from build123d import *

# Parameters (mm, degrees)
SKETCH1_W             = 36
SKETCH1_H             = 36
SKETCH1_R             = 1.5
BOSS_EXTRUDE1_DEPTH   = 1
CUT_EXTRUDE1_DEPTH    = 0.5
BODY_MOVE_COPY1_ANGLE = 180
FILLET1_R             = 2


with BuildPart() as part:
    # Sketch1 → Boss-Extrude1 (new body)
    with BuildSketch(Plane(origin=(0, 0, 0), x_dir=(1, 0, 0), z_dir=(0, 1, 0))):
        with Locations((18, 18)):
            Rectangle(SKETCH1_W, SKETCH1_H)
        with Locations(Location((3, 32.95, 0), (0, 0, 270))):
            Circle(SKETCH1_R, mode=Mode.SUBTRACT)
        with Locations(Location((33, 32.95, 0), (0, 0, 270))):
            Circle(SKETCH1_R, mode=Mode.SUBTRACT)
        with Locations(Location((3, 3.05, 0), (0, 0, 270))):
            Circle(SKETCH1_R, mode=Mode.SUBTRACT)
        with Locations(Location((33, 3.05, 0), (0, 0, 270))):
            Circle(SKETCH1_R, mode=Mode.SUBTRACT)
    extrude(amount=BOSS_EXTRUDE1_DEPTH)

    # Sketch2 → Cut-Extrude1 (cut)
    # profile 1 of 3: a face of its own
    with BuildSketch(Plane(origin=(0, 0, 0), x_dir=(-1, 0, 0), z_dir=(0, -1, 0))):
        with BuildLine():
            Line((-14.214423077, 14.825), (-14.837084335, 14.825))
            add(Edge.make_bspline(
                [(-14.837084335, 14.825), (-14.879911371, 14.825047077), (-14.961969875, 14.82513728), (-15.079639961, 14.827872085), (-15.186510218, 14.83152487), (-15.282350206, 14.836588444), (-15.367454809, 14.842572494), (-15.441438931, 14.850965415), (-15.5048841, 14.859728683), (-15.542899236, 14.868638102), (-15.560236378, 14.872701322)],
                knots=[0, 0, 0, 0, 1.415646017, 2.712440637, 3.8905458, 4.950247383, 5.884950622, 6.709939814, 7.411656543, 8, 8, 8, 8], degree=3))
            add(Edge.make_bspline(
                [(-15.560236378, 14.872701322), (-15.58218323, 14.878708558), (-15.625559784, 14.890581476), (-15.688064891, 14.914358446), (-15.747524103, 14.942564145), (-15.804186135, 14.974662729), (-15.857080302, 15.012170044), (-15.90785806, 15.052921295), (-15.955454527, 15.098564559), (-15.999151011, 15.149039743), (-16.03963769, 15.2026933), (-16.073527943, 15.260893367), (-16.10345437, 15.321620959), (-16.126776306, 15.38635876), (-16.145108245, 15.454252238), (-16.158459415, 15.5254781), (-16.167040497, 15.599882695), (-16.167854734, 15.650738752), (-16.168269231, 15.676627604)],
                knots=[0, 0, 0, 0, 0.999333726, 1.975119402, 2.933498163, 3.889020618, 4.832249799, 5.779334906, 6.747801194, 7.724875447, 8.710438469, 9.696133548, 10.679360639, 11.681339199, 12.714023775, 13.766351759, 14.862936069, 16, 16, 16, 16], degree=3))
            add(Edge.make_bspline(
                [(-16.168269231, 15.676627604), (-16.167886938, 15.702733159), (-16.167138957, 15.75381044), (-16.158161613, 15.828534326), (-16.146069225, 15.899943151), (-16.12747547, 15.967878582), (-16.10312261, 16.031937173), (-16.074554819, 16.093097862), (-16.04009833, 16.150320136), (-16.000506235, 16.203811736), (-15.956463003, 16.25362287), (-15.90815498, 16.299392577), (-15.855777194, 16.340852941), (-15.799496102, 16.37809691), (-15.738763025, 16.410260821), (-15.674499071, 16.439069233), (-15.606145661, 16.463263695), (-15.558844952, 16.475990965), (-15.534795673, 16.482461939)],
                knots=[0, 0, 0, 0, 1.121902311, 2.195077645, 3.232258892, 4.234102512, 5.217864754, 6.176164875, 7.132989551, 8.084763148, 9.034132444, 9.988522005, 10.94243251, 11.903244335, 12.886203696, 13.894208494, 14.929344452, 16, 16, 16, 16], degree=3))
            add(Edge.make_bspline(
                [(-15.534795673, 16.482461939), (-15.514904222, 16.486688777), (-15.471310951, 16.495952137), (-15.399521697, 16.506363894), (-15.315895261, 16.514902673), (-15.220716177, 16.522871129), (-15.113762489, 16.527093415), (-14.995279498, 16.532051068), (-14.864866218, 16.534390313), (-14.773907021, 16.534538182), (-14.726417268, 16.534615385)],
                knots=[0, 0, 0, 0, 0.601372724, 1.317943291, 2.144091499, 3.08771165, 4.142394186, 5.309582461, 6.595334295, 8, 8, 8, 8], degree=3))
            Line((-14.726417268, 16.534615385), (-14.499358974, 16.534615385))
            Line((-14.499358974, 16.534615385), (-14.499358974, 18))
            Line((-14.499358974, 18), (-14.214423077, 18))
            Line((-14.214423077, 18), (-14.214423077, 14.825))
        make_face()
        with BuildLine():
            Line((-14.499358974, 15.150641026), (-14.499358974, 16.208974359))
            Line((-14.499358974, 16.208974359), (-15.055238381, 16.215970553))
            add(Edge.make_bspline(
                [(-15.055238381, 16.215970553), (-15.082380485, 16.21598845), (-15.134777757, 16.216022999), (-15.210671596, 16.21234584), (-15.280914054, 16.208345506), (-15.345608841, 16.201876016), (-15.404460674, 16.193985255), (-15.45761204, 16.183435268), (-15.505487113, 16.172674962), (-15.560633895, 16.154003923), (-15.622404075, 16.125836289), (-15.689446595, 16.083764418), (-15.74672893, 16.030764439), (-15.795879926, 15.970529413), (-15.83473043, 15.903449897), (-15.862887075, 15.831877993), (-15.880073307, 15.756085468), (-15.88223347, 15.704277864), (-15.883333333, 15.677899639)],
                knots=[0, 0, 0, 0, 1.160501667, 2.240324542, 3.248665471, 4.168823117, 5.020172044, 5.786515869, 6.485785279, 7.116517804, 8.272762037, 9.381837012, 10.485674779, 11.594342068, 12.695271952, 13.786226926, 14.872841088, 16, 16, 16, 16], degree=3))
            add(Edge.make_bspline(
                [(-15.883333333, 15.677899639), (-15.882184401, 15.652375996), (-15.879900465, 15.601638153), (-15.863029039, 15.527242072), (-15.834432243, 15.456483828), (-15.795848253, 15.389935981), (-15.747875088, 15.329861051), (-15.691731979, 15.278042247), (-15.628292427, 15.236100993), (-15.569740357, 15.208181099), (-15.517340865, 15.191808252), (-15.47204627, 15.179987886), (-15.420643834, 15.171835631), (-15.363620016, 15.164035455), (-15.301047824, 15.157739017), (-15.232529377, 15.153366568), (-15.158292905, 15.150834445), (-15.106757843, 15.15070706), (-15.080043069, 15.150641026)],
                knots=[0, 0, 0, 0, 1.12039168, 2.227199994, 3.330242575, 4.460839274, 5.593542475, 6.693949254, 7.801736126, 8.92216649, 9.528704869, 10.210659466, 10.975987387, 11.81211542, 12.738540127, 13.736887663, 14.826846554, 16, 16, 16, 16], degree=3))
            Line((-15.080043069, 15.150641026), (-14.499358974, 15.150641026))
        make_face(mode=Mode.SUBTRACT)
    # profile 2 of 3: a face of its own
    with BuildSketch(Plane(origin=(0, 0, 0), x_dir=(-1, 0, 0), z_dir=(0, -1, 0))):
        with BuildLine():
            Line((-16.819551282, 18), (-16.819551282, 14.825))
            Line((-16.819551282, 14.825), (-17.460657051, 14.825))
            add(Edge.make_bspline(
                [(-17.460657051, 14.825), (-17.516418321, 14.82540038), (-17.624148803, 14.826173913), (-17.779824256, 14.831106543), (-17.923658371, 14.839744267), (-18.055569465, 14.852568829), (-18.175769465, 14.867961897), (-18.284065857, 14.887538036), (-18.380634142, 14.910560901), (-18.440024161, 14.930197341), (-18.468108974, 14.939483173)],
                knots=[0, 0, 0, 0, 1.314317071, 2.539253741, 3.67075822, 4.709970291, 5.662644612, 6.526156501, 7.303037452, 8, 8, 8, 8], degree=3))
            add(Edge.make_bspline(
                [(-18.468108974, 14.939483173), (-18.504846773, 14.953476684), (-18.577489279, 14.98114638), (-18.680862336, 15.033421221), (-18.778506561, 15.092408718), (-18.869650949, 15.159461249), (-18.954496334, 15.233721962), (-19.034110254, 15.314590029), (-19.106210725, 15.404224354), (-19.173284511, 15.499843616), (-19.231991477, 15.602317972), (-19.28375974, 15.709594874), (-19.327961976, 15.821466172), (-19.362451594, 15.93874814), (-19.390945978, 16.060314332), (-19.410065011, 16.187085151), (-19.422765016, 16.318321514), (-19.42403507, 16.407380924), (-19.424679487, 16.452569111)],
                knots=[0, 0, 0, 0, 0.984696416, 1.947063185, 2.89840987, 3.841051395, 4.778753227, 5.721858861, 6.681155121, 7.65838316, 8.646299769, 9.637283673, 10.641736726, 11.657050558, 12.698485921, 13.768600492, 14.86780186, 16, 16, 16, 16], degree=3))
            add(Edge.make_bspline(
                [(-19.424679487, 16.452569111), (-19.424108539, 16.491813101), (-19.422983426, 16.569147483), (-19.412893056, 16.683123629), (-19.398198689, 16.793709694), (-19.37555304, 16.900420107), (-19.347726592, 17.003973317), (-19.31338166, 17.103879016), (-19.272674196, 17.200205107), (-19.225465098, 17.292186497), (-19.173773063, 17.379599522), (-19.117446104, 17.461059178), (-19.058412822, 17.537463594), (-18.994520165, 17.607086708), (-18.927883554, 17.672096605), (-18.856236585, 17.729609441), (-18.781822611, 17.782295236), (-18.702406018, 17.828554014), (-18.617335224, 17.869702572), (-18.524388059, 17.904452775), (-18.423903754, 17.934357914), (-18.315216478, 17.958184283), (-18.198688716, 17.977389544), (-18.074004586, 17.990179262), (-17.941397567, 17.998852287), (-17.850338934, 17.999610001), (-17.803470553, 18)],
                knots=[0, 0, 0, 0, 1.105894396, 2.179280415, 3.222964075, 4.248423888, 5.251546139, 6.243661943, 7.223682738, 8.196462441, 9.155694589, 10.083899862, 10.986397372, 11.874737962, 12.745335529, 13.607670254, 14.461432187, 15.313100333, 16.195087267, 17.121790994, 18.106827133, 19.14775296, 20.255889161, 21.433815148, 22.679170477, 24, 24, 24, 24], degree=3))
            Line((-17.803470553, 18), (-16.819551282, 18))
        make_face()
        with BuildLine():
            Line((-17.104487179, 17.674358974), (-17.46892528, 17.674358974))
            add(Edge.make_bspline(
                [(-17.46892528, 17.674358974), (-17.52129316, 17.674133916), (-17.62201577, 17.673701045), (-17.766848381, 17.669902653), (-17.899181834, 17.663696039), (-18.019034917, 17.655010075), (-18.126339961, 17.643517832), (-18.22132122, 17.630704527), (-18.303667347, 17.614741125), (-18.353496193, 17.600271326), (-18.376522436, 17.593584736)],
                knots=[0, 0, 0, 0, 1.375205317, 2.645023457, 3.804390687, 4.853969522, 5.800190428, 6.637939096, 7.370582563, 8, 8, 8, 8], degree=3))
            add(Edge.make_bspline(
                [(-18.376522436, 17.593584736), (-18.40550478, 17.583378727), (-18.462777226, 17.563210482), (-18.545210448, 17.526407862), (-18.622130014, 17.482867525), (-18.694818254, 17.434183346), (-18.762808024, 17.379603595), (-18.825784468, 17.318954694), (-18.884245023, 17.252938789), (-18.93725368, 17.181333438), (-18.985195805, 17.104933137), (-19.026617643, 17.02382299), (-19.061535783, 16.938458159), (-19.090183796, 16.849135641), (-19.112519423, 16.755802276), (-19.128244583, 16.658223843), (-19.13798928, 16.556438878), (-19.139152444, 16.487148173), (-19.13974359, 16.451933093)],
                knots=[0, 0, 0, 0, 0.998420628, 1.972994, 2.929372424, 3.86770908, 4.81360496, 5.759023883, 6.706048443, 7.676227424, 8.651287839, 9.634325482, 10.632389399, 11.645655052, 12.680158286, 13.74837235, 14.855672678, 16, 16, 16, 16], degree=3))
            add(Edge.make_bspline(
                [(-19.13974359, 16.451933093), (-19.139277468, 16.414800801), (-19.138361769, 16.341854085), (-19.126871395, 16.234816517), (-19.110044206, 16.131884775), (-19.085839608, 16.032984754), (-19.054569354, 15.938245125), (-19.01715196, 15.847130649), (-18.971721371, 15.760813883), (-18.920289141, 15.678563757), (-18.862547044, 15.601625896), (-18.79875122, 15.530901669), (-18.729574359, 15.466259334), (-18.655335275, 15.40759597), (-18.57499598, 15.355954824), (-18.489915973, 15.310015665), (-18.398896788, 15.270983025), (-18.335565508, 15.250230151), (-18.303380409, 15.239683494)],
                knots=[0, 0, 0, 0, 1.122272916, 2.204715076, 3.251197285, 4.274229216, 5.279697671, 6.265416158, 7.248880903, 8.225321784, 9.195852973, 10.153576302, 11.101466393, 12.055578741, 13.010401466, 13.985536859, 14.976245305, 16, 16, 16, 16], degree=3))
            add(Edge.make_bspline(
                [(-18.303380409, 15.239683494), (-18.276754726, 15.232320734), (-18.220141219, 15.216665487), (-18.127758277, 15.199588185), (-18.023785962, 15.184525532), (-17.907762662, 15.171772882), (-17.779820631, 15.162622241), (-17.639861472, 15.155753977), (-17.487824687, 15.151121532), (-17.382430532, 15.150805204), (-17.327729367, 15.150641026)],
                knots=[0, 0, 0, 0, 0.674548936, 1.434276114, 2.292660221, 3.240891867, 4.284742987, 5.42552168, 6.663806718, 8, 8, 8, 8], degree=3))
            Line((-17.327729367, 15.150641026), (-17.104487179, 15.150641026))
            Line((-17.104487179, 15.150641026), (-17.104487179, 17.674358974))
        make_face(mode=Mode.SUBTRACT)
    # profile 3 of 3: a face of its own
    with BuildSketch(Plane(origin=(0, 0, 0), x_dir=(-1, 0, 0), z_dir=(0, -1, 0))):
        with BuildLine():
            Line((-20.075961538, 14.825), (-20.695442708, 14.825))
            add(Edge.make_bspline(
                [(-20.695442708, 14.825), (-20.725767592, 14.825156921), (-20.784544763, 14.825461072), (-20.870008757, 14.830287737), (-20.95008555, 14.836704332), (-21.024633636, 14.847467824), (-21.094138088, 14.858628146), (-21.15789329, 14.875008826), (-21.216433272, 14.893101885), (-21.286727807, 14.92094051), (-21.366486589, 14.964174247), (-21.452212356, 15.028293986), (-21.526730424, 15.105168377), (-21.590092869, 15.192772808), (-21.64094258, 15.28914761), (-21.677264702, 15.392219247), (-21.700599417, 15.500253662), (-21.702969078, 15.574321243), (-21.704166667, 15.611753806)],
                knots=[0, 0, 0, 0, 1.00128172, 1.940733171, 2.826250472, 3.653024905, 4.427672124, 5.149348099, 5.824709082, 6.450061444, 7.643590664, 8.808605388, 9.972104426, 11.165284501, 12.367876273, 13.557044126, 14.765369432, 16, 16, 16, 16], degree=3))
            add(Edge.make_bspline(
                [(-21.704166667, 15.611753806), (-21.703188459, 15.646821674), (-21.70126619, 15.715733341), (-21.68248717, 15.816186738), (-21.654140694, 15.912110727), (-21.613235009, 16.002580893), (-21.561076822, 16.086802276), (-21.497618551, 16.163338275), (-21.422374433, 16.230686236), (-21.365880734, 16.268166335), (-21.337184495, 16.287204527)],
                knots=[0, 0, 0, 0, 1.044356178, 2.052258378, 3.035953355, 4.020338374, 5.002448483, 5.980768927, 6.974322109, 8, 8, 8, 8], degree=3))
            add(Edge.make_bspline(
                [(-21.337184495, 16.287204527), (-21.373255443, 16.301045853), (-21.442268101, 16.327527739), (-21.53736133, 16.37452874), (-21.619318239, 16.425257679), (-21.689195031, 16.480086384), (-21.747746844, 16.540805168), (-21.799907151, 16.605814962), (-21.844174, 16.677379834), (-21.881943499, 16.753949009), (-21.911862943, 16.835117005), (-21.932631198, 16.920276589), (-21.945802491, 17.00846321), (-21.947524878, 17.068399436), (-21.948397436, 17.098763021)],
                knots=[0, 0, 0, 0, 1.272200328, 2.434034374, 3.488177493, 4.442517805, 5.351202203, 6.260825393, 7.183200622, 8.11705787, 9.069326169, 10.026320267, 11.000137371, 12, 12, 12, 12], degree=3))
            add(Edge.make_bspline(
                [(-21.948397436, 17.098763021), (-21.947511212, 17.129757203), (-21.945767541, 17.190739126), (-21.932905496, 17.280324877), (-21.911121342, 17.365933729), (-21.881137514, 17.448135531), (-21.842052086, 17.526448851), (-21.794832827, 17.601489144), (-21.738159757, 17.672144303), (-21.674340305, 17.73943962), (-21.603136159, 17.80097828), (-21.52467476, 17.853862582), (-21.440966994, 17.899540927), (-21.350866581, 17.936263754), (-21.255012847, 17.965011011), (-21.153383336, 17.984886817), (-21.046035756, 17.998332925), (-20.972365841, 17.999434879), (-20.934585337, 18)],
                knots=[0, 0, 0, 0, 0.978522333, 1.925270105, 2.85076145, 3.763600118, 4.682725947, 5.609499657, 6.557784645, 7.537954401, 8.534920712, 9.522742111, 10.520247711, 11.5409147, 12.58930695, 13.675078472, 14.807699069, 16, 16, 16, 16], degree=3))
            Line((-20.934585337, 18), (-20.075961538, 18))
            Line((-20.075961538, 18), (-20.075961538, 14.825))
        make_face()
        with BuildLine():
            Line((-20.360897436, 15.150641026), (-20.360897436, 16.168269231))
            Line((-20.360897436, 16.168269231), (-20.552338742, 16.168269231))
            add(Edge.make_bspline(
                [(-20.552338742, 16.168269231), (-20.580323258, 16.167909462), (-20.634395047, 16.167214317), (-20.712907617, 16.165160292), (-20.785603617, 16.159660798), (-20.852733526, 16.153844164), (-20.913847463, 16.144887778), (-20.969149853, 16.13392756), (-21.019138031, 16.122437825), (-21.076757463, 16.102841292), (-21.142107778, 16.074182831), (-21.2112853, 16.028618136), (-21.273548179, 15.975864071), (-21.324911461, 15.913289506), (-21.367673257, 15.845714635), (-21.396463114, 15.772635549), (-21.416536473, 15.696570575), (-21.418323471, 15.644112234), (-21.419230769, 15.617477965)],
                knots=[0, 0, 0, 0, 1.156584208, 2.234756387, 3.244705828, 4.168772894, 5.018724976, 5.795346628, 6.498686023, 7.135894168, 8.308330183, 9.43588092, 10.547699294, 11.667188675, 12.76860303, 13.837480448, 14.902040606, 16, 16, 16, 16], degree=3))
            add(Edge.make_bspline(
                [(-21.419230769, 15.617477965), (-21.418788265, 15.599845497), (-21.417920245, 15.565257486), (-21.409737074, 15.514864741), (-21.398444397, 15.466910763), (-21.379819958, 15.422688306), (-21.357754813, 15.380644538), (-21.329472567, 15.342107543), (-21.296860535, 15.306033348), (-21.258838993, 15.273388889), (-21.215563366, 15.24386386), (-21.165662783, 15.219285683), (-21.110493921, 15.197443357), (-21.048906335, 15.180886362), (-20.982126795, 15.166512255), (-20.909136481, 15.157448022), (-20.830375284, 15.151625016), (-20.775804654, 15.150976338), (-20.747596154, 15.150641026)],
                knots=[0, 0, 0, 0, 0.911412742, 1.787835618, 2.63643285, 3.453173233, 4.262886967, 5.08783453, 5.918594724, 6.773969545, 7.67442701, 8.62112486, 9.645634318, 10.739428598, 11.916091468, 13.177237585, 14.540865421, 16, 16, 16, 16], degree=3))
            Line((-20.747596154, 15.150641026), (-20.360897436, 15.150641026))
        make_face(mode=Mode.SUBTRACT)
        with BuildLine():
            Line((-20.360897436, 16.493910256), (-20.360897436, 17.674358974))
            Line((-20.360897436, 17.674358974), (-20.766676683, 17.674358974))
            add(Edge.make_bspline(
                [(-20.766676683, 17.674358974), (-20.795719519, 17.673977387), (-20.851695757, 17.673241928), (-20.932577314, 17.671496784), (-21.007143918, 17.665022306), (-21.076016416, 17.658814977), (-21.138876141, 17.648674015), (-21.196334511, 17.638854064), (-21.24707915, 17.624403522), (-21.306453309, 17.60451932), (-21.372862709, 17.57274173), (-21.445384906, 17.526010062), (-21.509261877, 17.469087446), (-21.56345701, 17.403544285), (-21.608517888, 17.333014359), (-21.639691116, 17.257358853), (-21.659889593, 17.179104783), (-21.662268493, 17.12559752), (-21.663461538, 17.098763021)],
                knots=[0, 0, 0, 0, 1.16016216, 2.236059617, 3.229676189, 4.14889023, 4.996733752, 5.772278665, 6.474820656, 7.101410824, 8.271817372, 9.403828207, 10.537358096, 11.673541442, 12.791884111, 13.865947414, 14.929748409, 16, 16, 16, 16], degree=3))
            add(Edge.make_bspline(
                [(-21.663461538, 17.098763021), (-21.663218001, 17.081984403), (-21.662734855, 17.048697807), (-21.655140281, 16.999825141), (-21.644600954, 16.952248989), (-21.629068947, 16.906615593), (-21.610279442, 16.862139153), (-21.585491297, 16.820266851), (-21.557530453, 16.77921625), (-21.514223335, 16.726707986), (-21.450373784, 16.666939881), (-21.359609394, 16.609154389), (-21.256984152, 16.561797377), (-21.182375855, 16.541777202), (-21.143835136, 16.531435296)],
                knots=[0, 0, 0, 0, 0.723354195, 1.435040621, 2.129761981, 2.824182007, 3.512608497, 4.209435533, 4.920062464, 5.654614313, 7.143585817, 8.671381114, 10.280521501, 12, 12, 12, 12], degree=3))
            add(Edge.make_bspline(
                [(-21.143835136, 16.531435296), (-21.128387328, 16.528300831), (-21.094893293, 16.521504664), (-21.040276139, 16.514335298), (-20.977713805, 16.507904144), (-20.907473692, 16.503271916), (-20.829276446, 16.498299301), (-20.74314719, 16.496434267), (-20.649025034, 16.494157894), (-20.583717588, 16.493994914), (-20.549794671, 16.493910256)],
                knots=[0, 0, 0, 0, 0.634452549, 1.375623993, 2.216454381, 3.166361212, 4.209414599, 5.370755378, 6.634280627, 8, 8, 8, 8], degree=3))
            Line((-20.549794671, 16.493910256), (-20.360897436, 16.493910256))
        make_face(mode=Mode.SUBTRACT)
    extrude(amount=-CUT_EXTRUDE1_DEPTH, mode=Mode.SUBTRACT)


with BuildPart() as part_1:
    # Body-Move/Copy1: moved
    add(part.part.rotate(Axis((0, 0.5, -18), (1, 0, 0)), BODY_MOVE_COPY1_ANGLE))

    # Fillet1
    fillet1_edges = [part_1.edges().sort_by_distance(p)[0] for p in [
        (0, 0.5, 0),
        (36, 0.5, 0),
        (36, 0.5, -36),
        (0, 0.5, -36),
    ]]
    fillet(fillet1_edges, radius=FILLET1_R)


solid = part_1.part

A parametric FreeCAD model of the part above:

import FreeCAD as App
import Part
import Sketcher

V = App.Vector
Q = App.Units.Quantity


def edges_at(feature, points):
    """Names of the edges that pass closest to the given points."""
    edges = feature.Shape.Edges
    near = lambda p: min(range(len(edges)), key=lambda i: edges[i].distToShape(Part.Vertex(*p))[0])
    return sorted({f"Edge{near(p) + 1}" for p in points})


def add_polygon(sketch, points):
    """Adds a closed chain of lines whose ends are joined by coincident constraints."""
    first, n = sketch.GeometryCount, len(points)
    for a, b in zip(points, points[1:] + points[:1]):
        sketch.addGeometry(Part.LineSegment(App.Vector(*a, 0), App.Vector(*b, 0)), False)
    for i in range(n):
        sketch.addConstraint(Sketcher.Constraint("Coincident", first + i, 2, first + (i + 1) % n, 1))

doc = App.newDocument("Part")
body = doc.addObject("PartDesign::Body", "Body")

sketch1 = body.newObject("Sketcher::SketchObject", "Sketch")
sketch1.AttachmentSupport = (doc.getObject("XZ_Plane"), [""])
sketch1.MapMode = "FlatFace"
add_polygon(sketch1, [(0, -36), (0, 0), (36, 0), (36, -36)])
sketch1.addGeometry(Part.Circle(V(3, -3.05, 0), V(0, 0, 1), 1.5), False)
sketch1.addGeometry(Part.Circle(V(33, -3.05, 0), V(0, 0, 1), 1.5), False)
sketch1.addGeometry(Part.Circle(V(3, -32.95, 0), V(0, 0, 1), 1.5), False)
sketch1.addGeometry(Part.Circle(V(33, -32.95, 0), V(0, 0, 1), 1.5), False)
sketch1.addConstraint(Sketcher.Constraint("Vertical", 0))
sketch1.addConstraint(Sketcher.Constraint("Horizontal", 1))
sketch1.addConstraint(Sketcher.Constraint("Vertical", 2))
sketch1.addConstraint(Sketcher.Constraint("Horizontal", 3))
sketch1.addConstraint(Sketcher.Constraint("Coincident", 0, 2, -1, 1))
sketch1.addConstraint(Sketcher.Constraint("Equal", 4, 5))
sketch1.addConstraint(Sketcher.Constraint("Equal", 5, 6))
sketch1.addConstraint(Sketcher.Constraint("Equal", 6, 7))
sketch1.addConstraint(Sketcher.Constraint("Horizontal", 4, 3, 5, 3))
sketch1.addConstraint(Sketcher.Constraint("Horizontal", 6, 3, 7, 3))
sketch1.addConstraint(Sketcher.Constraint("Vertical", 4, 3, 6, 3))
sketch1.addConstraint(Sketcher.Constraint("Vertical", 5, 3, 7, 3))
sketch1.addConstraint(Sketcher.Constraint("Equal", 3, 0))
sketch1.addConstraint(Sketcher.Constraint("Diameter", 4, Q("3 mm")))
sketch1.addConstraint(Sketcher.Constraint("DistanceX", 1, 1, 1, 2, Q("36 mm")))
sketch1.addConstraint(Sketcher.Constraint("DistanceX", -1, 1, 4, 3, Q("3 mm")))
sketch1.addConstraint(Sketcher.Constraint("DistanceX", -1, 1, 5, 3, Q("33 mm")))
sketch1.addConstraint(Sketcher.Constraint("DistanceY", 6, 3, 4, 3, Q("29.9 mm")))
sketch1.addConstraint(Sketcher.Constraint("DistanceY", 4, 3, -1, 1, Q("3.05 mm")))
pad1 = body.newObject("PartDesign::Pad", "Pad")
pad1.Profile = sketch1
pad1.Length = 1
pad1.Reversed = True

sketch2 = body.newObject("Sketcher::SketchObject", "Sketch001")
sketch2.AttachmentSupport = (doc.getObject("XZ_Plane"), [""])
sketch2.MapMode = "FlatFace"
sketch2.addGeometry(Part.LineSegment(V(14.837084, -14.825, 0), V(14.214423, -14.825, 0)), False)
sketch2.addGeometry(Part.LineSegment(V(14.214423, -14.825, 0), V(14.214423, -18, 0)), False)
sketch2.addGeometry(Part.LineSegment(V(14.214423, -18, 0), V(14.499359, -18, 0)), False)
sketch2.addGeometry(Part.LineSegment(V(14.499359, -18, 0), V(14.499359, -16.534615, 0)), False)
sketch2.addGeometry(Part.LineSegment(V(14.499359, -16.534615, 0), V(14.726417, -16.534615, 0)), False)
sketch2.addGeometry(Part.BSplineCurve([V(15.534796, -16.482462, 0), V(15.514904, -16.486689, 0), V(15.471311, -16.495952, 0), V(15.399522, -16.506364, 0), V(15.315895, -16.514903, 0), V(15.220716, -16.522871, 0), V(15.113762, -16.527093, 0), V(14.995279, -16.532051, 0), V(14.864866, -16.53439, 0), V(14.773907, -16.534538, 0), V(14.726417, -16.534615, 0)], [4, 1, 1, 1, 1, 1, 1, 1, 4], [0, 0.601372724, 1.317943291, 2.144091499, 3.08771165, 4.142394186, 5.309582461, 6.595334295, 8], False, 3, [1, 1, 1, 1, 1, 1, 1, 1, 1, 1, 1], False), False)
sketch2.addGeometry(Part.BSplineCurve([V(16.168269, -15.676628, 0), V(16.167887, -15.702733, 0), V(16.167139, -15.75381, 0), V(16.158162, -15.828534, 0), V(16.146069, -15.899943, 0), V(16.127475, -15.967879, 0), V(16.103123, -16.031937, 0), V(16.074555, -16.093098, 0), V(16.040098, -16.15032, 0), V(16.000506, -16.203812, 0), V(15.956463, -16.253623, 0), V(15.908155, -16.299393, 0), V(15.855777, -16.340853, 0), V(15.799496, -16.378097, 0), V(15.738763, -16.410261, 0), V(15.674499, -16.439069, 0), V(15.606146, -16.463264, 0), V(15.558845, -16.475991, 0), V(15.534796, -16.482462, 0)], [4, 1, 1, 1, 1, 1, 1, 1, 1, 1, 1, 1, 1, 1, 1, 1, 4], [0, 1.121902311, 2.195077645, 3.232258892, 4.234102512, 5.217864754, 6.176164875, 7.132989551, 8.084763148, 9.034132444, 9.988522005, 10.94243251, 11.903244335, 12.886203696, 13.894208494, 14.929344452, 16], False, 3, [1, 1, 1, 1, 1, 1, 1, 1, 1, 1, 1, 1, 1, 1, 1, 1, 1, 1, 1], False), False)
sketch2.addGeometry(Part.BSplineCurve([V(15.560236, -14.872701, 0), V(15.582183, -14.878709, 0), V(15.62556, -14.890581, 0), V(15.688065, -14.914358, 0), V(15.747524, -14.942564, 0), V(15.804186, -14.974663, 0), V(15.85708, -15.01217, 0), V(15.907858, -15.052921, 0), V(15.955455, -15.098565, 0), V(15.999151, -15.14904, 0), V(16.039638, -15.202693, 0), V(16.073528, -15.260893, 0), V(16.103454, -15.321621, 0), V(16.126776, -15.386359, 0), V(16.145108, -15.454252, 0), V(16.158459, -15.525478, 0), V(16.16704, -15.599883, 0), V(16.167855, -15.650739, 0), V(16.168269, -15.676628, 0)], [4, 1, 1, 1, 1, 1, 1, 1, 1, 1, 1, 1, 1, 1, 1, 1, 4], [0, 0.999333726, 1.975119402, 2.933498163, 3.889020618, 4.832249799, 5.779334906, 6.747801194, 7.724875447, 8.710438469, 9.696133548, 10.679360639, 11.681339199, 12.714023775, 13.766351759, 14.862936069, 16], False, 3, [1, 1, 1, 1, 1, 1, 1, 1, 1, 1, 1, 1, 1, 1, 1, 1, 1, 1, 1], False), False)
sketch2.addGeometry(Part.BSplineCurve([V(14.837084, -14.825, 0), V(14.879911, -14.825047, 0), V(14.96197, -14.825137, 0), V(15.07964, -14.827872, 0), V(15.18651, -14.831525, 0), V(15.28235, -14.836588, 0), V(15.367455, -14.842572, 0), V(15.441439, -14.850965, 0), V(15.504884, -14.859729, 0), V(15.542899, -14.868638, 0), V(15.560236, -14.872701, 0)], [4, 1, 1, 1, 1, 1, 1, 1, 4], [0, 1.415646017, 2.712440637, 3.8905458, 4.950247383, 5.884950622, 6.709939814, 7.411656543, 8], False, 3, [1, 1, 1, 1, 1, 1, 1, 1, 1, 1, 1], False), False)
sketch2.addGeometry(Part.LineSegment(V(14.499359, -15.150641, 0), V(15.080043, -15.150641, 0)), False)
sketch2.addGeometry(Part.BSplineCurve([V(15.883333, -15.6779, 0), V(15.882184, -15.652376, 0), V(15.8799, -15.601638, 0), V(15.863029, -15.527242, 0), V(15.834432, -15.456484, 0), V(15.795848, -15.389936, 0), V(15.747875, -15.329861, 0), V(15.691732, -15.278042, 0), V(15.628292, -15.236101, 0), V(15.56974, -15.208181, 0), V(15.517341, -15.191808, 0), V(15.472046, -15.179988, 0), V(15.420644, -15.171836, 0), V(15.36362, -15.164035, 0), V(15.301048, -15.157739, 0), V(15.232529, -15.153367, 0), V(15.158293, -15.150834, 0), V(15.106758, -15.150707, 0), V(15.080043, -15.150641, 0)], [4, 1, 1, 1, 1, 1, 1, 1, 1, 1, 1, 1, 1, 1, 1, 1, 4], [0, 1.12039168, 2.227199994, 3.330242575, 4.460839274, 5.593542475, 6.693949254, 7.801736126, 8.92216649, 9.528704869, 10.210659466, 10.975987387, 11.81211542, 12.738540127, 13.736887663, 14.826846554, 16], False, 3, [1, 1, 1, 1, 1, 1, 1, 1, 1, 1, 1, 1, 1, 1, 1, 1, 1, 1, 1], False), False)
sketch2.addGeometry(Part.BSplineCurve([V(15.055238, -16.215971, 0), V(15.08238, -16.215988, 0), V(15.134778, -16.216023, 0), V(15.210672, -16.212346, 0), V(15.280914, -16.208346, 0), V(15.345609, -16.201876, 0), V(15.404461, -16.193985, 0), V(15.457612, -16.183435, 0), V(15.505487, -16.172675, 0), V(15.560634, -16.154004, 0), V(15.622404, -16.125836, 0), V(15.689447, -16.083764, 0), V(15.746729, -16.030764, 0), V(15.79588, -15.970529, 0), V(15.83473, -15.90345, 0), V(15.862887, -15.831878, 0), V(15.880073, -15.756085, 0), V(15.882233, -15.704278, 0), V(15.883333, -15.6779, 0)], [4, 1, 1, 1, 1, 1, 1, 1, 1, 1, 1, 1, 1, 1, 1, 1, 4], [0, 1.160501667, 2.240324542, 3.248665471, 4.168823117, 5.020172044, 5.786515869, 6.485785279, 7.116517804, 8.272762037, 9.381837012, 10.485674779, 11.594342068, 12.695271952, 13.786226926, 14.872841088, 16], False, 3, [1, 1, 1, 1, 1, 1, 1, 1, 1, 1, 1, 1, 1, 1, 1, 1, 1, 1, 1], False), False)
sketch2.addGeometry(Part.LineSegment(V(15.055238, -16.215971, 0), V(14.499359, -16.208974, 0)), False)
sketch2.addGeometry(Part.LineSegment(V(14.499359, -16.208974, 0), V(14.499359, -15.150641, 0)), False)
sketch2.addGeometry(Part.LineSegment(V(16.819551, -14.825, 0), V(16.819551, -18, 0)), False)
sketch2.addGeometry(Part.LineSegment(V(16.819551, -18, 0), V(17.803471, -18, 0)), False)
sketch2.addGeometry(Part.BSplineCurve([V(19.424679, -16.452569, 0), V(19.424109, -16.491813, 0), V(19.422983, -16.569147, 0), V(19.412893, -16.683124, 0), V(19.398199, -16.79371, 0), V(19.375553, -16.90042, 0), V(19.347727, -17.003973, 0), V(19.313382, -17.103879, 0), V(19.272674, -17.200205, 0), V(19.225465, -17.292186, 0), V(19.173773, -17.3796, 0), V(19.117446, -17.461059, 0), V(19.058413, -17.537464, 0), V(18.99452, -17.607087, 0), V(18.927884, -17.672097, 0), V(18.856237, -17.729609, 0), V(18.781823, -17.782295, 0), V(18.702406, -17.828554, 0), V(18.617335, -17.869703, 0), V(18.524388, -17.904453, 0), V(18.423904, -17.934358, 0), V(18.315216, -17.958184, 0), V(18.198689, -17.97739, 0), V(18.074005, -17.990179, 0), V(17.941398, -17.998852, 0), V(17.850339, -17.99961, 0), V(17.803471, -18, 0)], [4, 1, 1, 1, 1, 1, 1, 1, 1, 1, 1, 1, 1, 1, 1, 1, 1, 1, 1, 1, 1, 1, 1, 1, 4], [0, 1.105894396, 2.179280415, 3.222964075, 4.248423888, 5.251546139, 6.243661943, 7.223682738, 8.196462441, 9.155694589, 10.083899862, 10.986397372, 11.874737962, 12.745335529, 13.607670254, 14.461432187, 15.313100333, 16.195087267, 17.121790994, 18.106827133, 19.14775296, 20.255889161, 21.433815148, 22.679170477, 24], False, 3, [1, 1, 1, 1, 1, 1, 1, 1, 1, 1, 1, 1, 1, 1, 1, 1, 1, 1, 1, 1, 1, 1, 1, 1, 1, 1, 1], False), False)
sketch2.addGeometry(Part.BSplineCurve([V(18.468109, -14.939483, 0), V(18.504847, -14.953477, 0), V(18.577489, -14.981146, 0), V(18.680862, -15.033421, 0), V(18.778507, -15.092409, 0), V(18.869651, -15.159461, 0), V(18.954496, -15.233722, 0), V(19.03411, -15.31459, 0), V(19.106211, -15.404224, 0), V(19.173285, -15.499844, 0), V(19.231991, -15.602318, 0), V(19.28376, -15.709595, 0), V(19.327962, -15.821466, 0), V(19.362452, -15.938748, 0), V(19.390946, -16.060314, 0), V(19.410065, -16.187085, 0), V(19.422765, -16.318322, 0), V(19.424035, -16.407381, 0), V(19.424679, -16.452569, 0)], [4, 1, 1, 1, 1, 1, 1, 1, 1, 1, 1, 1, 1, 1, 1, 1, 4], [0, 0.984696416, 1.947063185, 2.89840987, 3.841051395, 4.778753227, 5.721858861, 6.681155121, 7.65838316, 8.646299769, 9.637283673, 10.641736726, 11.657050558, 12.698485921, 13.768600492, 14.86780186, 16], False, 3, [1, 1, 1, 1, 1, 1, 1, 1, 1, 1, 1, 1, 1, 1, 1, 1, 1, 1, 1], False), False)
sketch2.addGeometry(Part.BSplineCurve([V(17.460657, -14.825, 0), V(17.516418, -14.8254, 0), V(17.624149, -14.826174, 0), V(17.779824, -14.831107, 0), V(17.923658, -14.839744, 0), V(18.055569, -14.852569, 0), V(18.175769, -14.867962, 0), V(18.284066, -14.887538, 0), V(18.380634, -14.910561, 0), V(18.440024, -14.930197, 0), V(18.468109, -14.939483, 0)], [4, 1, 1, 1, 1, 1, 1, 1, 4], [0, 1.314317071, 2.539253741, 3.67075822, 4.709970291, 5.662644612, 6.526156501, 7.303037452, 8], False, 3, [1, 1, 1, 1, 1, 1, 1, 1, 1, 1, 1], False), False)
sketch2.addGeometry(Part.LineSegment(V(17.460657, -14.825, 0), V(16.819551, -14.825, 0)), False)
sketch2.addGeometry(Part.LineSegment(V(17.104487, -17.674359, 0), V(17.104487, -15.150641, 0)), False)
sketch2.addGeometry(Part.LineSegment(V(17.104487, -15.150641, 0), V(17.327729, -15.150641, 0)), False)
sketch2.addGeometry(Part.BSplineCurve([V(18.30338, -15.239683, 0), V(18.276755, -15.232321, 0), V(18.220141, -15.216665, 0), V(18.127758, -15.199588, 0), V(18.023786, -15.184526, 0), V(17.907763, -15.171773, 0), V(17.779821, -15.162622, 0), V(17.639861, -15.155754, 0), V(17.487825, -15.151122, 0), V(17.382431, -15.150805, 0), V(17.327729, -15.150641, 0)], [4, 1, 1, 1, 1, 1, 1, 1, 4], [0, 0.674548936, 1.434276114, 2.292660221, 3.240891867, 4.284742987, 5.42552168, 6.663806718, 8], False, 3, [1, 1, 1, 1, 1, 1, 1, 1, 1, 1, 1], False), False)
sketch2.addGeometry(Part.BSplineCurve([V(19.139744, -16.451933, 0), V(19.139277, -16.414801, 0), V(19.138362, -16.341854, 0), V(19.126871, -16.234817, 0), V(19.110044, -16.131885, 0), V(19.08584, -16.032985, 0), V(19.054569, -15.938245, 0), V(19.017152, -15.847131, 0), V(18.971721, -15.760814, 0), V(18.920289, -15.678564, 0), V(18.862547, -15.601626, 0), V(18.798751, -15.530902, 0), V(18.729574, -15.466259, 0), V(18.655335, -15.407596, 0), V(18.574996, -15.355955, 0), V(18.489916, -15.310016, 0), V(18.398897, -15.270983, 0), V(18.335566, -15.25023, 0), V(18.30338, -15.239683, 0)], [4, 1, 1, 1, 1, 1, 1, 1, 1, 1, 1, 1, 1, 1, 1, 1, 4], [0, 1.122272916, 2.204715076, 3.251197285, 4.274229216, 5.279697671, 6.265416158, 7.248880903, 8.225321784, 9.195852973, 10.153576302, 11.101466393, 12.055578741, 13.010401466, 13.985536859, 14.976245305, 16], False, 3, [1, 1, 1, 1, 1, 1, 1, 1, 1, 1, 1, 1, 1, 1, 1, 1, 1, 1, 1], False), False)
sketch2.addGeometry(Part.BSplineCurve([V(18.376522, -17.593585, 0), V(18.405505, -17.583379, 0), V(18.462777, -17.56321, 0), V(18.54521, -17.526408, 0), V(18.62213, -17.482868, 0), V(18.694818, -17.434183, 0), V(18.762808, -17.379604, 0), V(18.825784, -17.318955, 0), V(18.884245, -17.252939, 0), V(18.937254, -17.181333, 0), V(18.985196, -17.104933, 0), V(19.026618, -17.023823, 0), V(19.061536, -16.938458, 0), V(19.090184, -16.849136, 0), V(19.112519, -16.755802, 0), V(19.128245, -16.658224, 0), V(19.137989, -16.556439, 0), V(19.139152, -16.487148, 0), V(19.139744, -16.451933, 0)], [4, 1, 1, 1, 1, 1, 1, 1, 1, 1, 1, 1, 1, 1, 1, 1, 4], [0, 0.998420628, 1.972994, 2.929372424, 3.86770908, 4.81360496, 5.759023883, 6.706048443, 7.676227424, 8.651287839, 9.634325482, 10.632389399, 11.645655052, 12.680158286, 13.74837235, 14.855672678, 16], False, 3, [1, 1, 1, 1, 1, 1, 1, 1, 1, 1, 1, 1, 1, 1, 1, 1, 1, 1, 1], False), False)
sketch2.addGeometry(Part.BSplineCurve([V(17.468925, -17.674359, 0), V(17.521293, -17.674134, 0), V(17.622016, -17.673701, 0), V(17.766848, -17.669903, 0), V(17.899182, -17.663696, 0), V(18.019035, -17.65501, 0), V(18.12634, -17.643518, 0), V(18.221321, -17.630705, 0), V(18.303667, -17.614741, 0), V(18.353496, -17.600271, 0), V(18.376522, -17.593585, 0)], [4, 1, 1, 1, 1, 1, 1, 1, 4], [0, 1.375205317, 2.645023457, 3.804390687, 4.853969522, 5.800190428, 6.637939096, 7.370582563, 8], False, 3, [1, 1, 1, 1, 1, 1, 1, 1, 1, 1, 1], False), False)
sketch2.addGeometry(Part.LineSegment(V(17.468925, -17.674359, 0), V(17.104487, -17.674359, 0)), False)
sketch2.addGeometry(Part.LineSegment(V(20.695443, -14.825, 0), V(20.075962, -14.825, 0)), False)
sketch2.addGeometry(Part.LineSegment(V(20.075962, -14.825, 0), V(20.075962, -18, 0)), False)
sketch2.addGeometry(Part.LineSegment(V(20.075962, -18, 0), V(20.934585, -18, 0)), False)
sketch2.addGeometry(Part.BSplineCurve([V(21.948397, -17.098763, 0), V(21.947511, -17.129757, 0), V(21.945768, -17.190739, 0), V(21.932905, -17.280325, 0), V(21.911121, -17.365934, 0), V(21.881138, -17.448136, 0), V(21.842052, -17.526449, 0), V(21.794833, -17.601489, 0), V(21.73816, -17.672144, 0), V(21.67434, -17.73944, 0), V(21.603136, -17.800978, 0), V(21.524675, -17.853863, 0), V(21.440967, -17.899541, 0), V(21.350867, -17.936264, 0), V(21.255013, -17.965011, 0), V(21.153383, -17.984887, 0), V(21.046036, -17.998333, 0), V(20.972366, -17.999435, 0), V(20.934585, -18, 0)], [4, 1, 1, 1, 1, 1, 1, 1, 1, 1, 1, 1, 1, 1, 1, 1, 4], [0, 0.978522333, 1.925270105, 2.85076145, 3.763600118, 4.682725947, 5.609499657, 6.557784645, 7.537954401, 8.534920712, 9.522742111, 10.520247711, 11.5409147, 12.58930695, 13.675078472, 14.807699069, 16], False, 3, [1, 1, 1, 1, 1, 1, 1, 1, 1, 1, 1, 1, 1, 1, 1, 1, 1, 1, 1], False), False)
sketch2.addGeometry(Part.BSplineCurve([V(21.337184, -16.287205, 0), V(21.373255, -16.301046, 0), V(21.442268, -16.327528, 0), V(21.537361, -16.374529, 0), V(21.619318, -16.425258, 0), V(21.689195, -16.480086, 0), V(21.747747, -16.540805, 0), V(21.799907, -16.605815, 0), V(21.844174, -16.67738, 0), V(21.881943, -16.753949, 0), V(21.911863, -16.835117, 0), V(21.932631, -16.920277, 0), V(21.945802, -17.008463, 0), V(21.947525, -17.068399, 0), V(21.948397, -17.098763, 0)], [4, 1, 1, 1, 1, 1, 1, 1, 1, 1, 1, 1, 4], [0, 1.272200328, 2.434034374, 3.488177493, 4.442517805, 5.351202203, 6.260825393, 7.183200622, 8.11705787, 9.069326169, 10.026320267, 11.000137371, 12], False, 3, [1, 1, 1, 1, 1, 1, 1, 1, 1, 1, 1, 1, 1, 1, 1], False), False)
sketch2.addGeometry(Part.BSplineCurve([V(21.704167, -15.611754, 0), V(21.703188, -15.646822, 0), V(21.701266, -15.715733, 0), V(21.682487, -15.816187, 0), V(21.654141, -15.912111, 0), V(21.613235, -16.002581, 0), V(21.561077, -16.086802, 0), V(21.497619, -16.163338, 0), V(21.422374, -16.230686, 0), V(21.365881, -16.268166, 0), V(21.337184, -16.287205, 0)], [4, 1, 1, 1, 1, 1, 1, 1, 4], [0, 1.044356178, 2.052258378, 3.035953355, 4.020338374, 5.002448483, 5.980768927, 6.974322109, 8], False, 3, [1, 1, 1, 1, 1, 1, 1, 1, 1, 1, 1], False), False)
sketch2.addGeometry(Part.BSplineCurve([V(20.695443, -14.825, 0), V(20.725768, -14.825157, 0), V(20.784545, -14.825461, 0), V(20.870009, -14.830288, 0), V(20.950086, -14.836704, 0), V(21.024634, -14.847468, 0), V(21.094138, -14.858628, 0), V(21.157893, -14.875009, 0), V(21.216433, -14.893102, 0), V(21.286728, -14.920941, 0), V(21.366487, -14.964174, 0), V(21.452212, -15.028294, 0), V(21.52673, -15.105168, 0), V(21.590093, -15.192773, 0), V(21.640943, -15.289148, 0), V(21.677265, -15.392219, 0), V(21.700599, -15.500254, 0), V(21.702969, -15.574321, 0), V(21.704167, -15.611754, 0)], [4, 1, 1, 1, 1, 1, 1, 1, 1, 1, 1, 1, 1, 1, 1, 1, 4], [0, 1.00128172, 1.940733171, 2.826250472, 3.653024905, 4.427672124, 5.149348099, 5.824709082, 6.450061444, 7.643590664, 8.808605388, 9.972104426, 11.165284501, 12.367876273, 13.557044126, 14.765369432, 16], False, 3, [1, 1, 1, 1, 1, 1, 1, 1, 1, 1, 1, 1, 1, 1, 1, 1, 1, 1, 1], False), False)
sketch2.addGeometry(Part.LineSegment(V(20.360897, -15.150641, 0), V(20.747596, -15.150641, 0)), False)
sketch2.addGeometry(Part.BSplineCurve([V(21.419231, -15.617478, 0), V(21.418788, -15.599845, 0), V(21.41792, -15.565257, 0), V(21.409737, -15.514865, 0), V(21.398444, -15.466911, 0), V(21.37982, -15.422688, 0), V(21.357755, -15.380645, 0), V(21.329473, -15.342108, 0), V(21.296861, -15.306033, 0), V(21.258839, -15.273389, 0), V(21.215563, -15.243864, 0), V(21.165663, -15.219286, 0), V(21.110494, -15.197443, 0), V(21.048906, -15.180886, 0), V(20.982127, -15.166512, 0), V(20.909136, -15.157448, 0), V(20.830375, -15.151625, 0), V(20.775805, -15.150976, 0), V(20.747596, -15.150641, 0)], [4, 1, 1, 1, 1, 1, 1, 1, 1, 1, 1, 1, 1, 1, 1, 1, 4], [0, 0.911412742, 1.787835618, 2.63643285, 3.453173233, 4.262886967, 5.08783453, 5.918594724, 6.773969545, 7.67442701, 8.62112486, 9.645634318, 10.739428598, 11.916091468, 13.177237585, 14.540865421, 16], False, 3, [1, 1, 1, 1, 1, 1, 1, 1, 1, 1, 1, 1, 1, 1, 1, 1, 1, 1, 1], False), False)
sketch2.addGeometry(Part.BSplineCurve([V(20.552339, -16.168269, 0), V(20.580323, -16.167909, 0), V(20.634395, -16.167214, 0), V(20.712908, -16.16516, 0), V(20.785604, -16.159661, 0), V(20.852734, -16.153844, 0), V(20.913847, -16.144888, 0), V(20.96915, -16.133928, 0), V(21.019138, -16.122438, 0), V(21.076757, -16.102841, 0), V(21.142108, -16.074183, 0), V(21.211285, -16.028618, 0), V(21.273548, -15.975864, 0), V(21.324911, -15.91329, 0), V(21.367673, -15.845715, 0), V(21.396463, -15.772636, 0), V(21.416536, -15.696571, 0), V(21.418323, -15.644112, 0), V(21.419231, -15.617478, 0)], [4, 1, 1, 1, 1, 1, 1, 1, 1, 1, 1, 1, 1, 1, 1, 1, 4], [0, 1.156584208, 2.234756387, 3.244705828, 4.168772894, 5.018724976, 5.795346628, 6.498686023, 7.135894168, 8.308330183, 9.43588092, 10.547699294, 11.667188675, 12.76860303, 13.837480448, 14.902040606, 16], False, 3, [1, 1, 1, 1, 1, 1, 1, 1, 1, 1, 1, 1, 1, 1, 1, 1, 1, 1, 1], False), False)
sketch2.addGeometry(Part.LineSegment(V(20.552339, -16.168269, 0), V(20.360897, -16.168269, 0)), False)
sketch2.addGeometry(Part.LineSegment(V(20.360897, -16.168269, 0), V(20.360897, -15.150641, 0)), False)
sketch2.addGeometry(Part.LineSegment(V(20.360897, -16.49391, 0), V(20.549795, -16.49391, 0)), False)
sketch2.addGeometry(Part.BSplineCurve([V(21.143835, -16.531435, 0), V(21.128387, -16.528301, 0), V(21.094893, -16.521505, 0), V(21.040276, -16.514335, 0), V(20.977714, -16.507904, 0), V(20.907474, -16.503272, 0), V(20.829276, -16.498299, 0), V(20.743147, -16.496434, 0), V(20.649025, -16.494158, 0), V(20.583718, -16.493995, 0), V(20.549795, -16.49391, 0)], [4, 1, 1, 1, 1, 1, 1, 1, 4], [0, 0.634452549, 1.375623993, 2.216454381, 3.166361212, 4.209414599, 5.370755378, 6.634280627, 8], False, 3, [1, 1, 1, 1, 1, 1, 1, 1, 1, 1, 1], False), False)
sketch2.addGeometry(Part.BSplineCurve([V(21.663462, -17.098763, 0), V(21.663218, -17.081984, 0), V(21.662735, -17.048698, 0), V(21.65514, -16.999825, 0), V(21.644601, -16.952249, 0), V(21.629069, -16.906616, 0), V(21.610279, -16.862139, 0), V(21.585491, -16.820267, 0), V(21.55753, -16.779216, 0), V(21.514223, -16.726708, 0), V(21.450374, -16.66694, 0), V(21.359609, -16.609154, 0), V(21.256984, -16.561797, 0), V(21.182376, -16.541777, 0), V(21.143835, -16.531435, 0)], [4, 1, 1, 1, 1, 1, 1, 1, 1, 1, 1, 1, 4], [0, 0.723354195, 1.435040621, 2.129761981, 2.824182007, 3.512608497, 4.209435533, 4.920062464, 5.654614313, 7.143585817, 8.671381114, 10.280521501, 12], False, 3, [1, 1, 1, 1, 1, 1, 1, 1, 1, 1, 1, 1, 1, 1, 1], False), False)
sketch2.addGeometry(Part.BSplineCurve([V(20.766677, -17.674359, 0), V(20.79572, -17.673977, 0), V(20.851696, -17.673242, 0), V(20.932577, -17.671497, 0), V(21.007144, -17.665022, 0), V(21.076016, -17.658815, 0), V(21.138876, -17.648674, 0), V(21.196335, -17.638854, 0), V(21.247079, -17.624404, 0), V(21.306453, -17.604519, 0), V(21.372863, -17.572742, 0), V(21.445385, -17.52601, 0), V(21.509262, -17.469087, 0), V(21.563457, -17.403544, 0), V(21.608518, -17.333014, 0), V(21.639691, -17.257359, 0), V(21.65989, -17.179105, 0), V(21.662268, -17.125598, 0), V(21.663462, -17.098763, 0)], [4, 1, 1, 1, 1, 1, 1, 1, 1, 1, 1, 1, 1, 1, 1, 1, 4], [0, 1.16016216, 2.236059617, 3.229676189, 4.14889023, 4.996733752, 5.772278665, 6.474820656, 7.101410824, 8.271817372, 9.403828207, 10.537358096, 11.673541442, 12.791884111, 13.865947414, 14.929748409, 16], False, 3, [1, 1, 1, 1, 1, 1, 1, 1, 1, 1, 1, 1, 1, 1, 1, 1, 1, 1, 1], False), False)
sketch2.addGeometry(Part.LineSegment(V(20.766677, -17.674359, 0), V(20.360897, -17.674359, 0)), False)
sketch2.addGeometry(Part.LineSegment(V(20.360897, -17.674359, 0), V(20.360897, -16.49391, 0)), False)
sketch2.addConstraint(Sketcher.Constraint("Block", 5))
sketch2.addConstraint(Sketcher.Constraint("Block", 6))
sketch2.addConstraint(Sketcher.Constraint("Block", 7))
sketch2.addConstraint(Sketcher.Constraint("Block", 8))
sketch2.addConstraint(Sketcher.Constraint("Block", 10))
sketch2.addConstraint(Sketcher.Constraint("Block", 11))
sketch2.addConstraint(Sketcher.Constraint("Block", 16))
sketch2.addConstraint(Sketcher.Constraint("Block", 17))
sketch2.addConstraint(Sketcher.Constraint("Block", 18))
sketch2.addConstraint(Sketcher.Constraint("Block", 22))
sketch2.addConstraint(Sketcher.Constraint("Block", 23))
sketch2.addConstraint(Sketcher.Constraint("Block", 24))
sketch2.addConstraint(Sketcher.Constraint("Block", 25))
sketch2.addConstraint(Sketcher.Constraint("Block", 30))
sketch2.addConstraint(Sketcher.Constraint("Block", 31))
sketch2.addConstraint(Sketcher.Constraint("Block", 32))
sketch2.addConstraint(Sketcher.Constraint("Block", 33))
sketch2.addConstraint(Sketcher.Constraint("Block", 35))
sketch2.addConstraint(Sketcher.Constraint("Block", 36))
sketch2.addConstraint(Sketcher.Constraint("Block", 40))
sketch2.addConstraint(Sketcher.Constraint("Block", 41))
sketch2.addConstraint(Sketcher.Constraint("Block", 42))
sketch2.addConstraint(Sketcher.Constraint("Coincident", 0, 2, 1, 1))
sketch2.addConstraint(Sketcher.Constraint("Coincident", 1, 2, 2, 1))
sketch2.addConstraint(Sketcher.Constraint("Coincident", 2, 2, 3, 1))
sketch2.addConstraint(Sketcher.Constraint("Coincident", 3, 2, 4, 1))
sketch2.addConstraint(Sketcher.Constraint("Coincident", 4, 2, 5, 2))
sketch2.addConstraint(Sketcher.Constraint("Coincident", 8, 1, 0, 1))
sketch2.addConstraint(Sketcher.Constraint("Coincident", 9, 2, 10, 2))
sketch2.addConstraint(Sketcher.Constraint("Coincident", 11, 1, 12, 1))
sketch2.addConstraint(Sketcher.Constraint("Coincident", 12, 2, 13, 1))
sketch2.addConstraint(Sketcher.Constraint("Coincident", 13, 2, 9, 1))
sketch2.addConstraint(Sketcher.Constraint("Coincident", 14, 2, 15, 1))
sketch2.addConstraint(Sketcher.Constraint("Coincident", 15, 2, 16, 2))
sketch2.addConstraint(Sketcher.Constraint("Coincident", 18, 1, 19, 1))
sketch2.addConstraint(Sketcher.Constraint("Coincident", 19, 2, 14, 1))
sketch2.addConstraint(Sketcher.Constraint("Coincident", 20, 2, 21, 1))
sketch2.addConstraint(Sketcher.Constraint("Coincident", 21, 2, 22, 2))
sketch2.addConstraint(Sketcher.Constraint("Coincident", 25, 1, 26, 1))
sketch2.addConstraint(Sketcher.Constraint("Coincident", 26, 2, 20, 1))
sketch2.addConstraint(Sketcher.Constraint("Coincident", 27, 2, 28, 1))
sketch2.addConstraint(Sketcher.Constraint("Coincident", 28, 2, 29, 1))
sketch2.addConstraint(Sketcher.Constraint("Coincident", 29, 2, 30, 2))
sketch2.addConstraint(Sketcher.Constraint("Coincident", 33, 1, 27, 1))
sketch2.addConstraint(Sketcher.Constraint("Coincident", 34, 2, 35, 2))
sketch2.addConstraint(Sketcher.Constraint("Coincident", 36, 1, 37, 1))
sketch2.addConstraint(Sketcher.Constraint("Coincident", 37, 2, 38, 1))
sketch2.addConstraint(Sketcher.Constraint("Coincident", 38, 2, 34, 1))
sketch2.addConstraint(Sketcher.Constraint("Coincident", 39, 2, 40, 2))
sketch2.addConstraint(Sketcher.Constraint("Coincident", 42, 1, 43, 1))
sketch2.addConstraint(Sketcher.Constraint("Coincident", 43, 2, 44, 1))
sketch2.addConstraint(Sketcher.Constraint("Coincident", 44, 2, 39, 1))
sketch2.addConstraint(Sketcher.Constraint("Horizontal", 0))
sketch2.addConstraint(Sketcher.Constraint("Vertical", 1))
sketch2.addConstraint(Sketcher.Constraint("Horizontal", 2))
sketch2.addConstraint(Sketcher.Constraint("Vertical", 3))
sketch2.addConstraint(Sketcher.Constraint("Horizontal", 4))
sketch2.addConstraint(Sketcher.Constraint("Horizontal", 9))
sketch2.addConstraint(Sketcher.Constraint("Vertical", 13))
sketch2.addConstraint(Sketcher.Constraint("Vertical", 14))
sketch2.addConstraint(Sketcher.Constraint("Horizontal", 15))
sketch2.addConstraint(Sketcher.Constraint("Horizontal", 19))
sketch2.addConstraint(Sketcher.Constraint("Vertical", 20))
sketch2.addConstraint(Sketcher.Constraint("Horizontal", 21))
sketch2.addConstraint(Sketcher.Constraint("Horizontal", 26))
sketch2.addConstraint(Sketcher.Constraint("Horizontal", 27))
sketch2.addConstraint(Sketcher.Constraint("Vertical", 28))
sketch2.addConstraint(Sketcher.Constraint("Horizontal", 29))
sketch2.addConstraint(Sketcher.Constraint("Horizontal", 34))
sketch2.addConstraint(Sketcher.Constraint("Horizontal", 37))
sketch2.addConstraint(Sketcher.Constraint("Vertical", 38))
sketch2.addConstraint(Sketcher.Constraint("Horizontal", 39))
sketch2.addConstraint(Sketcher.Constraint("Horizontal", 43))
sketch2.addConstraint(Sketcher.Constraint("Vertical", 44))
sketch2.addConstraint(Sketcher.Constraint("Horizontal", 2, 2, 14, 2))
sketch2.addConstraint(Sketcher.Constraint("Vertical", 3, 2, 12, 2))
sketch2.addConstraint(Sketcher.Constraint("Vertical", 38, 2, 43, 2))
sketch2.addConstraint(Sketcher.Constraint("DistanceX", 34, 1, 34, 2, Q("0.386699 mm")))
sketch2.addConstraint(Sketcher.Constraint("DistanceX", 0, 2, 0, 1, Q("0.622661 mm")))
sketch2.addConstraint(Sketcher.Constraint("DistanceX", 4, 1, 4, 2, Q("0.227058 mm")))
sketch2.addConstraint(Sketcher.Constraint("DistanceX", 15, 1, 15, 2, Q("0.983919 mm")))
sketch2.addConstraint(Sketcher.Constraint("DistanceX", 26, 2, 26, 1, Q("0.364438 mm")))
sketch2.addConstraint(Sketcher.Constraint("DistanceX", 27, 2, 27, 1, Q("0.619481 mm")))
sketch2.addConstraint(Sketcher.Constraint("DistanceY", 13, 1, 13, 2, Q("1.058333 mm")))
pocket1 = body.newObject("PartDesign::Pocket", "Pocket")
pocket1.Profile = sketch2
pocket1.Length = 0.5
body2 = doc.addObject("PartDesign::Body", "Body001")
doc.recompute()

body.Placement = App.Placement(V(0, 1, -36), App.Rotation(V(1, 0, 0), 180))
boolean = body2.newObject("PartDesign::Boolean", "Boolean")
boolean.Type = "Fuse"
boolean.addObjects([body])
doc.recompute()

fillet = body2.newObject("PartDesign::Fillet", "Fillet")
fillet.Base = (boolean, edges_at(boolean, [
    (0, 0.5, 0),
    (36, 0.5, 0),
    (36, 0.5, -36),
    (0, 0.5, -36),
]))
fillet.Radius = 2

doc.recompute()
